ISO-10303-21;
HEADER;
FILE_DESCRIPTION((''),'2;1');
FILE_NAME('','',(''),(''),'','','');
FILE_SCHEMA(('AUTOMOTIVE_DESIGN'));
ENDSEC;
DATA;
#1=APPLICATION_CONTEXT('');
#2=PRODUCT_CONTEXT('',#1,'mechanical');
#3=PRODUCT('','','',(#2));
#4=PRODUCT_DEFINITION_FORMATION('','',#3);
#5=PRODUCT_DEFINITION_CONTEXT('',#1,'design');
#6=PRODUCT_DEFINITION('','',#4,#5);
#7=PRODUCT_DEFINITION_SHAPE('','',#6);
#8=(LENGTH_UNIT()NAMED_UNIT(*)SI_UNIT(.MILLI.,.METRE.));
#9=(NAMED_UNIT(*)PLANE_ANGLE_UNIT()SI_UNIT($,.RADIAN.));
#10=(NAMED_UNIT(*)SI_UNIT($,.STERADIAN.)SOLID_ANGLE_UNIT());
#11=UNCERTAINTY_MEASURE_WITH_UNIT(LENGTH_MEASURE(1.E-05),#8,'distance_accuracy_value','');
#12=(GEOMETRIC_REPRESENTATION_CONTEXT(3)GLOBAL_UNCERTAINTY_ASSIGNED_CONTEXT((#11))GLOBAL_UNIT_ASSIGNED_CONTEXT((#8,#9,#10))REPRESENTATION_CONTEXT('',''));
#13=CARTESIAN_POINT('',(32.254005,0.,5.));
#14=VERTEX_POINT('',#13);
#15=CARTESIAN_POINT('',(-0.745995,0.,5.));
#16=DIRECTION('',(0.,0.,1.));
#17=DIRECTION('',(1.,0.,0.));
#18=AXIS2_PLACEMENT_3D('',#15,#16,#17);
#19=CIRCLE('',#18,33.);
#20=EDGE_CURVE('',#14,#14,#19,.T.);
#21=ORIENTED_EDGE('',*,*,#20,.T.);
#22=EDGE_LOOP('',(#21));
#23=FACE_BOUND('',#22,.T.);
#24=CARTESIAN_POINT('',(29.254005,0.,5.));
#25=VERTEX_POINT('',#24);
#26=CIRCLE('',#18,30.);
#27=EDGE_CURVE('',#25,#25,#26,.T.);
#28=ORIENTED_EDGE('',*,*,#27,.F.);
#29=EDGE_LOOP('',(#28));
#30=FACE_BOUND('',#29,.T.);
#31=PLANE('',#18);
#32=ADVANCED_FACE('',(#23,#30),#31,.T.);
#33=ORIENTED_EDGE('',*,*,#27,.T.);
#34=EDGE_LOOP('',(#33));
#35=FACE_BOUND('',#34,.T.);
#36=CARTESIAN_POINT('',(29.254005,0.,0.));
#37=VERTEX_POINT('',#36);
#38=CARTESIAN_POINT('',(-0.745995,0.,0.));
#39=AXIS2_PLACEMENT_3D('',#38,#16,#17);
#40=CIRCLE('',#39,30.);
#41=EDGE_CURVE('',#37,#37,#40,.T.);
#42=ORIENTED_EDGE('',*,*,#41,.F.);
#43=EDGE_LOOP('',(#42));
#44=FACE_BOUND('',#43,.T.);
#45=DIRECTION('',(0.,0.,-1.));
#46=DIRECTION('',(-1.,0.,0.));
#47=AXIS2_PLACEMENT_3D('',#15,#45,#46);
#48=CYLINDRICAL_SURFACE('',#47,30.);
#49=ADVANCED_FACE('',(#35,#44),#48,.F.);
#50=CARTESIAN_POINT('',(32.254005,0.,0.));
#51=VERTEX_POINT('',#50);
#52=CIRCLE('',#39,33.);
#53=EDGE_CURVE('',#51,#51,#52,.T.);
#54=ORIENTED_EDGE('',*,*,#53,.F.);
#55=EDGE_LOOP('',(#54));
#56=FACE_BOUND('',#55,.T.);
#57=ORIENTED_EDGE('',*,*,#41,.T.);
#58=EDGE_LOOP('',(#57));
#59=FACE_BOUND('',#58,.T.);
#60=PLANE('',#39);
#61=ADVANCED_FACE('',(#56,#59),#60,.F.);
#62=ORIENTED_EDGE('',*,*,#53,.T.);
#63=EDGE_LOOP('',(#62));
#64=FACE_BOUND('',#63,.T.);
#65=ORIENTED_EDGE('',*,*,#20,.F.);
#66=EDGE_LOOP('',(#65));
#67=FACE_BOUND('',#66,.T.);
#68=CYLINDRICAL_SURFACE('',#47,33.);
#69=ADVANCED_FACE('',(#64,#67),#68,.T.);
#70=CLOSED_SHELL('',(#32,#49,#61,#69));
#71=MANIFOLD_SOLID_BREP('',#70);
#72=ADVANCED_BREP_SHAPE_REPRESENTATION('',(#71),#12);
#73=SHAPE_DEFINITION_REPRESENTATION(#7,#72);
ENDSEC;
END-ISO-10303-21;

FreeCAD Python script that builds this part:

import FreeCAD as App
import Part
import Sketcher

V = App.Vector
Q = App.Units.Quantity

doc = App.newDocument("Part")
body = doc.addObject("PartDesign::Body", "Body")

# Sketch on XY plane
sketch1 = body.newObject("Sketcher::SketchObject", "Sketch")
sketch1.AttachmentSupport = (doc.getObject("XY_Plane"), [""])
sketch1.MapMode = "FlatFace"
sketch1.addGeometry([
    Part.Circle(V(-0.745995, 0, 0), V(0, 0, 1), 33),
    Part.Circle(V(-0.745995, 0, 0), V(0, 0, 1), 30),
], False)
sketch1.addConstraint([
    Sketcher.Constraint("Coincident", 1, 3, 0, 3),
    Sketcher.Constraint("PointOnObject", 0, 3, -1),
    Sketcher.Constraint("Diameter", 0, Q("66 mm")),
    Sketcher.Constraint("Diameter", 1, Q("60 mm")),
    Sketcher.Constraint("DistanceX", 0, 3, -1, 1, Q("0.745995 mm")),
])
pad1 = body.newObject("PartDesign::Pad", "Pad")
pad1.Profile = sketch1
pad1.Length = 5

doc.recompute()
